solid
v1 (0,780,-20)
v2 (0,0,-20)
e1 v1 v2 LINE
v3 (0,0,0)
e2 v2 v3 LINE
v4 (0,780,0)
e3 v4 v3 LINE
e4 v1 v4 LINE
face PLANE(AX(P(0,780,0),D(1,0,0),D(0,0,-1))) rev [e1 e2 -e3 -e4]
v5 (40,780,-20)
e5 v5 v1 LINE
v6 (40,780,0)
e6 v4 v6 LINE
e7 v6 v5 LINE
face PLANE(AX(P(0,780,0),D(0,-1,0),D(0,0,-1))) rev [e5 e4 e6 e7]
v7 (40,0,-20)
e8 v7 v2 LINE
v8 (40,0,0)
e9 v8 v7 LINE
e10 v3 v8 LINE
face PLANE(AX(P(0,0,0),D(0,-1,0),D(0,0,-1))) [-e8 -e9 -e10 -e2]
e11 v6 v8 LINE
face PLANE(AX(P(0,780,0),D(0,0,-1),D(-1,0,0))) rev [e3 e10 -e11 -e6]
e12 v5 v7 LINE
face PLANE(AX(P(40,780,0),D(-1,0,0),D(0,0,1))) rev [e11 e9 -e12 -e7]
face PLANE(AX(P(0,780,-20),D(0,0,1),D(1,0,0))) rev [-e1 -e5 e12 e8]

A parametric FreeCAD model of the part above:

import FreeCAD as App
import Part
import Sketcher
from FreeCAD import Vector


def add_polygon(sketch, points):
    """Adds a closed chain of lines whose ends are joined by coincident constraints."""
    first, n = sketch.GeometryCount, len(points)
    for a, b in zip(points, points[1:] + points[:1]):
        sketch.addGeometry(Part.LineSegment(App.Vector(*a, 0), App.Vector(*b, 0)), False)
    for i in range(n):
        sketch.addConstraint(Sketcher.Constraint("Coincident", first + i, 2, first + (i + 1) % n, 1))

doc = App.newDocument("Part")
body = doc.addObject("PartDesign::Body", "Body")

sketch1 = body.newObject("Sketcher::SketchObject", "Sketch")
sketch1.AttachmentSupport = (doc.getObject("XZ_Plane"), [""])
sketch1.MapMode = "FlatFace"
add_polygon(sketch1, [(0, -20), (0, 0), (40, 0), (40, -20)])
sketch1.addConstraint(Sketcher.Constraint("Vertical", 0))
sketch1.addConstraint(Sketcher.Constraint("Horizontal", 1))
sketch1.addConstraint(Sketcher.Constraint("Vertical", 2))
sketch1.addConstraint(Sketcher.Constraint("Horizontal", 3))
sketch1.addConstraint(Sketcher.Constraint("Coincident", 0, 2, -1, 1))
sketch1.addConstraint(Sketcher.Constraint("DistanceX", 1, 1, 1, 2, 40.0))
sketch1.addConstraint(Sketcher.Constraint("DistanceY", 0, 1, 0, 2, 20.0))
pad1 = body.newObject("PartDesign::Pad", "Pad")
pad1.Profile = sketch1
pad1.Length = 780
pad1.Reversed = True

doc.recompute()
